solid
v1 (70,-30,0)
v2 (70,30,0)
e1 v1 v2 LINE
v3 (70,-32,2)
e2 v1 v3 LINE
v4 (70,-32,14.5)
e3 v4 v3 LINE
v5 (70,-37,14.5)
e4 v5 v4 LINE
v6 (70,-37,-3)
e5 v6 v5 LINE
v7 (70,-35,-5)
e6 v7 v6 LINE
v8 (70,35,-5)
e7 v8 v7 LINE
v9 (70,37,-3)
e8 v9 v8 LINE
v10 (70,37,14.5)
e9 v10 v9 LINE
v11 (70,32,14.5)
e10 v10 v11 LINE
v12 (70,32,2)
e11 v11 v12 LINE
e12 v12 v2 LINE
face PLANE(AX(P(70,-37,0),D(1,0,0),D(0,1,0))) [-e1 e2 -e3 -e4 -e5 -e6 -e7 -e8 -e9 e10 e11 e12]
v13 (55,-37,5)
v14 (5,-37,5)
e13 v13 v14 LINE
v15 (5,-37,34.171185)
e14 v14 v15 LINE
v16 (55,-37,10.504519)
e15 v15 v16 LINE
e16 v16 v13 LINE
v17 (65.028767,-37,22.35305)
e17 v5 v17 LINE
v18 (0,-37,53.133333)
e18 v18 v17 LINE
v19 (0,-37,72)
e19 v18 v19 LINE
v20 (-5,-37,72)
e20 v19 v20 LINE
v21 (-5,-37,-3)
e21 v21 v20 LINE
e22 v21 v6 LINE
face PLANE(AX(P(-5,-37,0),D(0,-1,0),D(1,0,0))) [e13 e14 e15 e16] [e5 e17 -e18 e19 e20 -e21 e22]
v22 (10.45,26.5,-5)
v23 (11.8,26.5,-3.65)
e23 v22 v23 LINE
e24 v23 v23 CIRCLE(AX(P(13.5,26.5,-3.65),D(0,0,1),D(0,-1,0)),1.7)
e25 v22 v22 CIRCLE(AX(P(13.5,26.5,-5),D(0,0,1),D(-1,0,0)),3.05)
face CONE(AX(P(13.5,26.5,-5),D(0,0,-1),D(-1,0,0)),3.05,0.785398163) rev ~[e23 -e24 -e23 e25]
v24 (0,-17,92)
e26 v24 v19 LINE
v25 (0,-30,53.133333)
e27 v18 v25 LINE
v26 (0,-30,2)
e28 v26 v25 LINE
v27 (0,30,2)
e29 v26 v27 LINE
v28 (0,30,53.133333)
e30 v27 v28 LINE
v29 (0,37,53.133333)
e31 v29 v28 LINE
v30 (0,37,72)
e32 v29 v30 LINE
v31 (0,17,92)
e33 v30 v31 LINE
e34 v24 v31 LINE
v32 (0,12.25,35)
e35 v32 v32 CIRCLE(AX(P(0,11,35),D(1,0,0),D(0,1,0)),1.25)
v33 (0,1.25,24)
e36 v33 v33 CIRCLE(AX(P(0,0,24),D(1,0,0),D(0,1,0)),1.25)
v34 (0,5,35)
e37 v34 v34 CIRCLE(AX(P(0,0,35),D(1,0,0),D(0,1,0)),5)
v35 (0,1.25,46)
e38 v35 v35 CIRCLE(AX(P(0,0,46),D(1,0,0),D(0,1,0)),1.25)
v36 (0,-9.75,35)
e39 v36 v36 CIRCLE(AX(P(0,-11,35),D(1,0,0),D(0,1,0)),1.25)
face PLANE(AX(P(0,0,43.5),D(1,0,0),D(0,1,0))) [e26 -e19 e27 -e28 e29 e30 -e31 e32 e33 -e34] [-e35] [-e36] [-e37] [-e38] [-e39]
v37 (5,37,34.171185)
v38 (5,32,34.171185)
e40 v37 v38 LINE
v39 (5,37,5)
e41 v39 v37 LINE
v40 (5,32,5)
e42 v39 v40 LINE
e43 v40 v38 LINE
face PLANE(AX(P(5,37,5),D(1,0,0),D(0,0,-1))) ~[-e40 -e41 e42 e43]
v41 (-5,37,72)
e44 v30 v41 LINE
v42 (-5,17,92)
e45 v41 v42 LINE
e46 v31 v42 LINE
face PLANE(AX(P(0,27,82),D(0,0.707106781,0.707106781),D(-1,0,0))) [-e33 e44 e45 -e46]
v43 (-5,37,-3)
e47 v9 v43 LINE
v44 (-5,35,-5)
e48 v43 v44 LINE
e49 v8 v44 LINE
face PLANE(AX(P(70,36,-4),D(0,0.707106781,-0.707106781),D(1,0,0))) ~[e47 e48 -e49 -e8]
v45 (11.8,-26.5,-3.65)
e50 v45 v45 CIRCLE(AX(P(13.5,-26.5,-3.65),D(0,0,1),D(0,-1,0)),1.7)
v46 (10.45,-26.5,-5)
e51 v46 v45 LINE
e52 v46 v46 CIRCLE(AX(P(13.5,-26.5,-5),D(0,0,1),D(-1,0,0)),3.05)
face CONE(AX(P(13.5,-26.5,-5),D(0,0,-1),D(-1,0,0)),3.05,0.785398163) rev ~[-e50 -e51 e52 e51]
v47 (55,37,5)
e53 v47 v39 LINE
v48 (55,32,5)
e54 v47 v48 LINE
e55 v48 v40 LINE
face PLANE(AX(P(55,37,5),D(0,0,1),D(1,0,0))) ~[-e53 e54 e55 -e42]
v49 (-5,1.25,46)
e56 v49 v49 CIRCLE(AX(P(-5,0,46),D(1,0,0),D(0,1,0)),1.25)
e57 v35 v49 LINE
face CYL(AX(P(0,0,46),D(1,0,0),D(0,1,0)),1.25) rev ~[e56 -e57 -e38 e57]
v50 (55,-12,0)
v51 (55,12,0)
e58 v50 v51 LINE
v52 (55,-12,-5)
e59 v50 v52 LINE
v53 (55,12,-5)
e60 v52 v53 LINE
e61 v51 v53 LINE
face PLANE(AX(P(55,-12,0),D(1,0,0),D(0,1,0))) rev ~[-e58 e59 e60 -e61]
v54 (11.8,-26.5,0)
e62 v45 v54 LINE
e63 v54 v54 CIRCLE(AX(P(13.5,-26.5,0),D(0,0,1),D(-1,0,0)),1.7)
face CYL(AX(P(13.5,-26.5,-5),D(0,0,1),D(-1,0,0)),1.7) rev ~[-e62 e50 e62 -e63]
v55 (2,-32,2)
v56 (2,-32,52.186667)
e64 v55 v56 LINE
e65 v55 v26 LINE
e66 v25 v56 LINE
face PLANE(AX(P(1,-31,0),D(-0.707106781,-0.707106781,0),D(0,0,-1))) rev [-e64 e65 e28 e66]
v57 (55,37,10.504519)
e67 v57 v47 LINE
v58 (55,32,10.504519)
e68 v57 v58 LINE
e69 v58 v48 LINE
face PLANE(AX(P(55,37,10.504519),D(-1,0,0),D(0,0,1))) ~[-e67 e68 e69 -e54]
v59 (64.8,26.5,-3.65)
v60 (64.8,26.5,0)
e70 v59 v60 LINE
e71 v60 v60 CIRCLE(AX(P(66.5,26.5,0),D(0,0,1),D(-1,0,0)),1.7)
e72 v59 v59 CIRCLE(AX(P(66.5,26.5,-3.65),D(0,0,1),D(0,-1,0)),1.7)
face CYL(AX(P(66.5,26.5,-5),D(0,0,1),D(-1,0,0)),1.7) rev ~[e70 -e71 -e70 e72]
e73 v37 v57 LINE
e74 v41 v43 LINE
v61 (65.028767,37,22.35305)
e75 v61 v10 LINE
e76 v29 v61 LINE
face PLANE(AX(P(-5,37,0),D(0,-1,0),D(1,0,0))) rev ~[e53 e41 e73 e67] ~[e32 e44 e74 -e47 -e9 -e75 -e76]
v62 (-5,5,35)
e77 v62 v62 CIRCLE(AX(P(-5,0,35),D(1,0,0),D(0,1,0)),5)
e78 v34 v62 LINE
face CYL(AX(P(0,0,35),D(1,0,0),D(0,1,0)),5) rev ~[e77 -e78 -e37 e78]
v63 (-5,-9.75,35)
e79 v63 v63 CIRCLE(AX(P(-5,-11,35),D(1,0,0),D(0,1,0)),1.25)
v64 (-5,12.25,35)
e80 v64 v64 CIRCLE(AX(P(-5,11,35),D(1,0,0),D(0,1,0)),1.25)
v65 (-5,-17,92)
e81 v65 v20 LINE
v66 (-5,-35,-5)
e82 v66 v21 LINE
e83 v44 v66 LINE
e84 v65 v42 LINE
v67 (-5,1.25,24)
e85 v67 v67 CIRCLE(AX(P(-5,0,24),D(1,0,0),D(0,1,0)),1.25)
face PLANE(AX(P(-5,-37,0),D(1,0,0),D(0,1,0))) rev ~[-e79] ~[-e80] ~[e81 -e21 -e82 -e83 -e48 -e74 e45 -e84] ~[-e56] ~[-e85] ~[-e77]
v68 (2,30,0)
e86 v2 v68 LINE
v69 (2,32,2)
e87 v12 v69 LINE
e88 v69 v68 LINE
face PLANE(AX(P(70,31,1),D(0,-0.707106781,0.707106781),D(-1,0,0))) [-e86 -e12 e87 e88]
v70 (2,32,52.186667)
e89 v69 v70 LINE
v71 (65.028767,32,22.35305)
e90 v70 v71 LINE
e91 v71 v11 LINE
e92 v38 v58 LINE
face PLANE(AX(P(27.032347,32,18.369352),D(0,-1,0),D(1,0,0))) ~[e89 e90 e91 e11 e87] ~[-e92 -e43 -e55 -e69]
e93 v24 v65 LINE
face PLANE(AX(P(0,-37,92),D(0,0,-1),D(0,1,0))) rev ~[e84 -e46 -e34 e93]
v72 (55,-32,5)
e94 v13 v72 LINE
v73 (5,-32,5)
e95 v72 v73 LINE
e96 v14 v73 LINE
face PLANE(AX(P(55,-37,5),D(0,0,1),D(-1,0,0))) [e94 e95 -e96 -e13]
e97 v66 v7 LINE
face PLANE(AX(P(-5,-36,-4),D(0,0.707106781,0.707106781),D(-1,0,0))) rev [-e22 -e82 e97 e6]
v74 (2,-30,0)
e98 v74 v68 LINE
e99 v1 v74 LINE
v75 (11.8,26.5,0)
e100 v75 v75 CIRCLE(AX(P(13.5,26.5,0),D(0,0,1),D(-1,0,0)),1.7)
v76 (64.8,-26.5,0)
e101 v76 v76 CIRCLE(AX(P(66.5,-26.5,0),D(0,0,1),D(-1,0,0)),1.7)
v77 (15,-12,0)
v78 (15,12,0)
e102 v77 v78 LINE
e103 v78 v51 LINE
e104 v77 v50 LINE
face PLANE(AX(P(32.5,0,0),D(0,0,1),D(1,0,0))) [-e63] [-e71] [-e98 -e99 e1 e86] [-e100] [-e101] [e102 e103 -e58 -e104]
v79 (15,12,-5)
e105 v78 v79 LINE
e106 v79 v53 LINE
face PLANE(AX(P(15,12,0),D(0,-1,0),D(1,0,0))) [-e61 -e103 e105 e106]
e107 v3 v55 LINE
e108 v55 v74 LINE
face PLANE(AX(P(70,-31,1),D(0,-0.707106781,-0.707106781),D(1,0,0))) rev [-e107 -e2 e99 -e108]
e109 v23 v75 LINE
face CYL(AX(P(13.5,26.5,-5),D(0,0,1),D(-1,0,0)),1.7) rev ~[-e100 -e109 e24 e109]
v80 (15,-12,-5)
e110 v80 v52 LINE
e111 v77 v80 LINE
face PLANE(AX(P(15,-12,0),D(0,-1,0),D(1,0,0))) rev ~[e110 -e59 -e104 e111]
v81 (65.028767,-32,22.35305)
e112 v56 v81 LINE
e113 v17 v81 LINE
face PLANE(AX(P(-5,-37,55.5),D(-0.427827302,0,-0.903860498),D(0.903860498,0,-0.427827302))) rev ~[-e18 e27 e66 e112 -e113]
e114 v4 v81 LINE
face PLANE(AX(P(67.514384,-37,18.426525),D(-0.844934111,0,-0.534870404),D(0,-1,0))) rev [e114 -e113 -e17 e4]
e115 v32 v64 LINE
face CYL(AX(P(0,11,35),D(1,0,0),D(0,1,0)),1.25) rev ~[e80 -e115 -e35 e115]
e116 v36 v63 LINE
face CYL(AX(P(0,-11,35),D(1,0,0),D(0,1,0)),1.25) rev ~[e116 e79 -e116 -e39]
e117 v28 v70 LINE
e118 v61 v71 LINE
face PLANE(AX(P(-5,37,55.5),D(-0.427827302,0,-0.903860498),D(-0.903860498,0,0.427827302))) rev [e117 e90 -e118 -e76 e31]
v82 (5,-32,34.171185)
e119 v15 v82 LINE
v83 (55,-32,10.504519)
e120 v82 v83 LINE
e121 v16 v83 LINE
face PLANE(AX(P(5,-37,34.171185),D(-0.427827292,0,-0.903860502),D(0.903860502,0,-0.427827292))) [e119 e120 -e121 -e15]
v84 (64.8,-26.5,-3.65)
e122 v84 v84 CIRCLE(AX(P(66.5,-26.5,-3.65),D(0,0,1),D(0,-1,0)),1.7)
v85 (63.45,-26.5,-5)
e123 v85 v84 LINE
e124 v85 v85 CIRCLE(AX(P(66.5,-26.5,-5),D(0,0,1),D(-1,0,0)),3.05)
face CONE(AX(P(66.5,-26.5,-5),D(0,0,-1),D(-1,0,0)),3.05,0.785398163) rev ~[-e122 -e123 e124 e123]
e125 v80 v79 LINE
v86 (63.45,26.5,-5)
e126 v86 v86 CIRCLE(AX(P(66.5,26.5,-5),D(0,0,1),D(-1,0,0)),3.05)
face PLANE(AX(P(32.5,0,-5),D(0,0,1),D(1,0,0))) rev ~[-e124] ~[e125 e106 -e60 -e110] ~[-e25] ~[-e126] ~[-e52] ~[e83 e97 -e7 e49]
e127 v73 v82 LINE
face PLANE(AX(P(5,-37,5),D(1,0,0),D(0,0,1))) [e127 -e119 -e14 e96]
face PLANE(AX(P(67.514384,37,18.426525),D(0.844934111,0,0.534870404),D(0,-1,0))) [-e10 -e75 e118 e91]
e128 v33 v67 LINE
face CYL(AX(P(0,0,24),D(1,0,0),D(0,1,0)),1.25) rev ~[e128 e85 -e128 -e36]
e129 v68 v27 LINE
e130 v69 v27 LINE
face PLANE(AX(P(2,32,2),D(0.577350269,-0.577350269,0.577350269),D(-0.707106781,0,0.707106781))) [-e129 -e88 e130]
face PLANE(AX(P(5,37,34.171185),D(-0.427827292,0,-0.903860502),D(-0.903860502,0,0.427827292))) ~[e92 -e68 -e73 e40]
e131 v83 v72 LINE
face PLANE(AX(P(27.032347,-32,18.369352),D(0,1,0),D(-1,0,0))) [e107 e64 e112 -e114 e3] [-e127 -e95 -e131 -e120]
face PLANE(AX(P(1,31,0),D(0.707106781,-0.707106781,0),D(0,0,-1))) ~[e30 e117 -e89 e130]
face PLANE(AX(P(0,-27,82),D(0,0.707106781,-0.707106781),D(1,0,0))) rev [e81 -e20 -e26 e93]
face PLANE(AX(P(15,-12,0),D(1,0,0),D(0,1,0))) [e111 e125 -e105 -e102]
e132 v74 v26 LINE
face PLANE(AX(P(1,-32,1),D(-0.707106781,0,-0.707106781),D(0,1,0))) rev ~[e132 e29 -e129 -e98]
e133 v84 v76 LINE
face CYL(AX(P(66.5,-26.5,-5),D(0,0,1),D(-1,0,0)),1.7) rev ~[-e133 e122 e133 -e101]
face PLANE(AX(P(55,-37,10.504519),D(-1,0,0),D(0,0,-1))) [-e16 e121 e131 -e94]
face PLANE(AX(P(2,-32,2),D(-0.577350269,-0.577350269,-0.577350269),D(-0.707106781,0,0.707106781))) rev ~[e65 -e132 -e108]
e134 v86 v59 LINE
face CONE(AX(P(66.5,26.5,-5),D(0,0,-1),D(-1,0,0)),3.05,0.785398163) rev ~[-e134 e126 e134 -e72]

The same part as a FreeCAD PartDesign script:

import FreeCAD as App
import Part
import Sketcher
from FreeCAD import Vector


def edges_at(feature, points):
    """Names of the edges that pass closest to the given points."""
    edges = feature.Shape.Edges
    near = lambda p: min(range(len(edges)), key=lambda i: edges[i].distToShape(Part.Vertex(*p))[0])
    return sorted({f"Edge{near(p) + 1}" for p in points})

doc = App.newDocument("Part")
params = doc.addObject("Spreadsheet::Sheet", "Params")
for row, (alias, value) in enumerate([
    ("sketch1_width", "75 mm"),
    ("sketch1_width2", "40 mm"),
    ("sketch1_height", "74 mm"),
    ("sketch1_height2", "24 mm"),
    ("pad1_length", "5 mm"),
    ("sketch2_width", "74 mm"),
    ("sketch2_height", "97 mm"),
    ("pad2_length", "5 mm"),
    ("sketch3_width", "75 mm"),
    ("sketch3_width2", "50 mm"),
    ("sketch3_height", "25 mm"),
    ("sketch3_height2", "60.5 mm"),
    ("pad3_length", "5 mm"),
    ("sketch4_diameter", "3.4 mm"),
    ("hole_diameter", "3.4 mm"),
    ("hole_csink_diameter", "6.1 mm"),
    ("sketch5_diameter", "10 mm"),
    ("sketch5_diameter2", "2.5 mm"),
    ("chamfer_size", "2 mm"),
    ("chamfer2_size", "5.5 mm"),
    ("chamfer3_size", "20 mm"),
], start=1):
    params.set(f"A{row}", alias)
    params.set(f"B{row}", "=" + value)
    params.setAlias(f"B{row}", alias)

body = doc.addObject("PartDesign::Body", "Body")

# Sketch on XY plane
sketch1 = body.newObject("Sketcher::SketchObject", "Sketch")
sketch1.AttachmentSupport = (doc.getObject("XY_Plane"), [""])
sketch1.MapMode = "FlatFace"
sketch1.addGeometry(Part.LineSegment(Vector(-5, 37, 0), Vector(-5, -37, 0)), False)
sketch1.addGeometry(Part.LineSegment(Vector(-5, -37, 0), Vector(70, -37, 0)), False)
sketch1.addGeometry(Part.LineSegment(Vector(70, -37, 0), Vector(70, 37, 0)), False)
sketch1.addGeometry(Part.LineSegment(Vector(70, 37, 0), Vector(-5, 37, 0)), False)
sketch1.addGeometry(Part.LineSegment(Vector(55, -12, 0), Vector(15, -12, 0)), False)
sketch1.addGeometry(Part.LineSegment(Vector(15, -12, 0), Vector(15, 12, 0)), False)
sketch1.addGeometry(Part.LineSegment(Vector(15, 12, 0), Vector(55, 12, 0)), False)
sketch1.addGeometry(Part.LineSegment(Vector(55, 12, 0), Vector(55, -12, 0)), False)
sketch1.addConstraint(Sketcher.Constraint("Coincident", 0, 2, 1, 1))
sketch1.addConstraint(Sketcher.Constraint("Coincident", 1, 2, 2, 1))
sketch1.addConstraint(Sketcher.Constraint("Coincident", 2, 2, 3, 1))
sketch1.addConstraint(Sketcher.Constraint("Coincident", 3, 2, 0, 1))
sketch1.addConstraint(Sketcher.Constraint("Coincident", 4, 2, 5, 1))
sketch1.addConstraint(Sketcher.Constraint("Coincident", 5, 2, 6, 1))
sketch1.addConstraint(Sketcher.Constraint("Coincident", 6, 2, 7, 1))
sketch1.addConstraint(Sketcher.Constraint("Coincident", 7, 2, 4, 1))
sketch1.addConstraint(Sketcher.Constraint("Vertical", 0))
sketch1.addConstraint(Sketcher.Constraint("Horizontal", 1))
sketch1.addConstraint(Sketcher.Constraint("Vertical", 2))
sketch1.addConstraint(Sketcher.Constraint("Horizontal", 3))
sketch1.addConstraint(Sketcher.Constraint("Horizontal", 4))
sketch1.addConstraint(Sketcher.Constraint("Vertical", 5))
sketch1.addConstraint(Sketcher.Constraint("Horizontal", 6))
sketch1.addConstraint(Sketcher.Constraint("Vertical", 7))
sketch1.addConstraint(Sketcher.Constraint("DistanceX", 1, 1, 1, 2, 75.0))
sketch1.addConstraint(Sketcher.Constraint("DistanceX", 4, 2, 4, 1, 40.0))
sketch1.addConstraint(Sketcher.Constraint("DistanceY", 0, 2, 0, 1, 74.0))
sketch1.addConstraint(Sketcher.Constraint("DistanceY", 5, 1, 5, 2, 24.0))
sketch1.addConstraint(Sketcher.Constraint("DistanceX", 0, 2, -1, 1, 5.0))
sketch1.addConstraint(Sketcher.Constraint("DistanceY", 0, 2, -1, 1, 37.0))
sketch1.addConstraint(Sketcher.Constraint("DistanceX", -1, 1, 4, 2, 15.0))
sketch1.addConstraint(Sketcher.Constraint("DistanceY", 4, 2, -1, 1, 12.0))
sketch1.setExpression("Constraints[16]", "Params.sketch1_width")
sketch1.setExpression("Constraints[17]", "Params.sketch1_width2")
sketch1.setExpression("Constraints[18]", "Params.sketch1_height")
sketch1.setExpression("Constraints[19]", "Params.sketch1_height2")
pad1 = body.newObject("PartDesign::Pad", "Pad")
pad1.Profile = sketch1
pad1.setExpression("Length", "Params.pad1_length")
pad1.Reversed = True

# Sketch on YZ plane
sketch2 = body.newObject("Sketcher::SketchObject", "Sketch001")
sketch2.AttachmentSupport = (doc.getObject("YZ_Plane"), [""])
sketch2.MapMode = "FlatFace"
sketch2.addGeometry(Part.LineSegment(Vector(-37, 92, 0), Vector(-37, -5, 0)), False)
sketch2.addGeometry(Part.LineSegment(Vector(-37, -5, 0), Vector(37, -5, 0)), False)
sketch2.addGeometry(Part.LineSegment(Vector(37, -5, 0), Vector(37, 92, 0)), False)
sketch2.addGeometry(Part.LineSegment(Vector(37, 92, 0), Vector(-37, 92, 0)), False)
sketch2.addConstraint(Sketcher.Constraint("Coincident", 0, 2, 1, 1))
sketch2.addConstraint(Sketcher.Constraint("Coincident", 1, 2, 2, 1))
sketch2.addConstraint(Sketcher.Constraint("Coincident", 2, 2, 3, 1))
sketch2.addConstraint(Sketcher.Constraint("Coincident", 3, 2, 0, 1))
sketch2.addConstraint(Sketcher.Constraint("Vertical", 0))
sketch2.addConstraint(Sketcher.Constraint("Horizontal", 1))
sketch2.addConstraint(Sketcher.Constraint("Vertical", 2))
sketch2.addConstraint(Sketcher.Constraint("Horizontal", 3))
sketch2.addConstraint(Sketcher.Constraint("DistanceX", 1, 1, 1, 2, 74.0))
sketch2.addConstraint(Sketcher.Constraint("DistanceY", 0, 2, 0, 1, 97.0))
sketch2.addConstraint(Sketcher.Constraint("DistanceX", 0, 2, -1, 1, 37.0))
sketch2.addConstraint(Sketcher.Constraint("DistanceY", 0, 2, -1, 1, 5.0))
sketch2.setExpression("Constraints[8]", "Params.sketch2_width")
sketch2.setExpression("Constraints[9]", "Params.sketch2_height")
pad2 = body.newObject("PartDesign::Pad", "Pad001")
pad2.Profile = sketch2
pad2.setExpression("Length", "Params.pad2_length")
pad2.Reversed = True

# Sketch on XZ plane
sketch3 = body.newObject("Sketcher::SketchObject", "Sketch002")
sketch3.AttachmentSupport = (doc.getObject("XZ_Plane"), [""])
sketch3.MapMode = "FlatFace"
sketch3.AttachmentOffset = App.Placement(Vector(0, 0, 37), App.Rotation())
sketch3.addGeometry(Part.LineSegment(Vector(70, 20, 0), Vector(-5, 56, 0)), False)
sketch3.addGeometry(Part.LineSegment(Vector(-5, 56, 0), Vector(-5, -5, 0)), False)
sketch3.addGeometry(Part.LineSegment(Vector(-5, -5, 0), Vector(70, -5, 0)), False)
sketch3.addGeometry(Part.LineSegment(Vector(70, -5, 0), Vector(70, 20, 0)), False)
sketch3.addGeometry(Part.LineSegment(Vector(5, 34, 0), Vector(55, 11, 0)), False)
sketch3.addGeometry(Part.LineSegment(Vector(55, 11, 0), Vector(55, 5, 0)), False)
sketch3.addGeometry(Part.LineSegment(Vector(55, 5, 0), Vector(5, 5, 0)), False)
sketch3.addGeometry(Part.LineSegment(Vector(5, 5, 0), Vector(5, 34, 0)), False)
sketch3.addConstraint(Sketcher.Constraint("Coincident", 0, 2, 1, 1))
sketch3.addConstraint(Sketcher.Constraint("Coincident", 1, 2, 2, 1))
sketch3.addConstraint(Sketcher.Constraint("Coincident", 2, 2, 3, 1))
sketch3.addConstraint(Sketcher.Constraint("Coincident", 3, 2, 0, 1))
sketch3.addConstraint(Sketcher.Constraint("Coincident", 4, 2, 5, 1))
sketch3.addConstraint(Sketcher.Constraint("Coincident", 5, 2, 6, 1))
sketch3.addConstraint(Sketcher.Constraint("Coincident", 6, 2, 7, 1))
sketch3.addConstraint(Sketcher.Constraint("Coincident", 7, 2, 4, 1))
sketch3.addConstraint(Sketcher.Constraint("Vertical", 1))
sketch3.addConstraint(Sketcher.Constraint("Horizontal", 2))
sketch3.addConstraint(Sketcher.Constraint("Vertical", 3))
sketch3.addConstraint(Sketcher.Constraint("Vertical", 5))
sketch3.addConstraint(Sketcher.Constraint("Horizontal", 6))
sketch3.addConstraint(Sketcher.Constraint("Vertical", 7))
sketch3.addConstraint(Sketcher.Constraint("Symmetric", 1, 2, 6, 2, -1, 1))
sketch3.addConstraint(Sketcher.Constraint("Parallel", 0, 4))
sketch3.addConstraint(Sketcher.Constraint("DistanceX", 2, 1, 2, 2, 75.0))
sketch3.addConstraint(Sketcher.Constraint("DistanceX", 6, 2, 6, 1, 50.0))
sketch3.addConstraint(Sketcher.Constraint("DistanceY", 3, 1, 3, 2, 25.0))
sketch3.addConstraint(Sketcher.Constraint("DistanceY", 1, 2, 1, 1, 60.5))
sketch3.addConstraint(Sketcher.Constraint("DistanceX", 0, 2, -1, 1, 5.0))
sketch3.addConstraint(Sketcher.Constraint("DistanceY", 1, 2, -1, 1, 5.0))
sketch3.addConstraint(Sketcher.Constraint("DistanceY", 5, 2, 5, 1, 5.504519))
sketch3.setExpression("Constraints[16]", "Params.sketch3_width")
sketch3.setExpression("Constraints[17]", "Params.sketch3_width2")
sketch3.setExpression("Constraints[18]", "Params.sketch3_height")
sketch3.setExpression("Constraints[19]", "Params.sketch3_height2")
pad3 = body.newObject("PartDesign::Pad", "Pad002")
pad3.Profile = sketch3
pad3.setExpression("Length", "Params.pad3_length")
pad3.Reversed = True
doc.recompute()

mirrored = body.newObject("PartDesign::Mirrored", "Mirrored")
mirrored.Originals = [pad3]
mirrored.MirrorPlane = (doc.getObject("XZ_Plane"), [""])
body.Tip = mirrored

# Sketch on XY plane
sketch4 = body.newObject("Sketcher::SketchObject", "Sketch003")
sketch4.AttachmentSupport = (doc.getObject("XY_Plane"), [""])
sketch4.MapMode = "FlatFace"
sketch4.AttachmentOffset = App.Placement(Vector(0, 0, -5), App.Rotation())
sketch4.addGeometry(Part.Circle(Vector(66.5, 26.5, 0), Vector(0, 0, 1), 1.7), False)
sketch4.addGeometry(Part.Circle(Vector(13.5, 26.5, 0), Vector(0, 0, 1), 1.7), False)
sketch4.addGeometry(Part.Circle(Vector(13.5, -26.5, 0), Vector(0, 0, 1), 1.7), False)
sketch4.addGeometry(Part.Circle(Vector(66.5, -26.5, 0), Vector(0, 0, 1), 1.7), False)
sketch4.addConstraint(Sketcher.Constraint("Equal", 0, 1))
sketch4.addConstraint(Sketcher.Constraint("Equal", 1, 2))
sketch4.addConstraint(Sketcher.Constraint("Equal", 2, 3))
sketch4.addConstraint(Sketcher.Constraint("Symmetric", 1, 3, 2, 3, -1))
sketch4.addConstraint(Sketcher.Constraint("Symmetric", 0, 3, 3, 3, -1))
sketch4.addConstraint(Sketcher.Constraint("Horizontal", 0, 3, 1, 3))
sketch4.addConstraint(Sketcher.Constraint("Diameter", 0, 3.4))
sketch4.addConstraint(Sketcher.Constraint("DistanceX", 1, 3, 0, 3, 53.0))
sketch4.addConstraint(Sketcher.Constraint("DistanceY", 2, 3, 1, 3, 53.0))
sketch4.addConstraint(Sketcher.Constraint("DistanceX", -1, 1, 0, 3, 66.5))
sketch4.setExpression("Constraints[6]", "Params.sketch4_diameter")
doc.recompute()
hole = body.newObject("PartDesign::Hole", "Hole")
hole.Profile = sketch4
hole.ThreadType = "None"
hole.setExpression("Diameter", "Params.hole_diameter")
hole.DepthType = "ThroughAll"
hole.HoleCutType = "Countersink"
hole.setExpression("HoleCutDiameter", "Params.hole_csink_diameter")
hole.HoleCutCountersinkAngle = 90
hole.Reversed = True

# Sketch on YZ plane
sketch5 = body.newObject("Sketcher::SketchObject", "Sketch004")
sketch5.AttachmentSupport = (doc.getObject("YZ_Plane"), [""])
sketch5.MapMode = "FlatFace"
sketch5.addGeometry(Part.Circle(Vector(0, 35, 0), Vector(0, 0, 1), 5), False)
sketch5.addGeometry(Part.Circle(Vector(0, 46, 0), Vector(0, 0, 1), 1.2), False)
sketch5.addGeometry(Part.Circle(Vector(11, 35, 0), Vector(0, 0, 1), 1.2), False)
sketch5.addGeometry(Part.Circle(Vector(0, 24, 0), Vector(0, 0, 1), 1.2), False)
sketch5.addGeometry(Part.Circle(Vector(-11, 35, 0), Vector(0, 0, 1), 1.2), False)
sketch5.addConstraint(Sketcher.Constraint("Equal", 1, 2))
sketch5.addConstraint(Sketcher.Constraint("Equal", 2, 3))
sketch5.addConstraint(Sketcher.Constraint("Equal", 3, 4))
sketch5.addConstraint(Sketcher.Constraint("Symmetric", 2, 3, 4, 3, -2))
sketch5.addConstraint(Sketcher.Constraint("PointOnObject", 0, 3, -2))
sketch5.addConstraint(Sketcher.Constraint("PointOnObject", 1, 3, -2))
sketch5.addConstraint(Sketcher.Constraint("PointOnObject", 3, 3, -2))
sketch5.addConstraint(Sketcher.Constraint("Horizontal", 0, 3, 2, 3))
sketch5.addConstraint(Sketcher.Constraint("Diameter", 0, 10.0))
sketch5.addConstraint(Sketcher.Constraint("Diameter", 1, 2.5))
sketch5.addConstraint(Sketcher.Constraint("DistanceY", -1, 1, 0, 3, 35.0))
sketch5.addConstraint(Sketcher.Constraint("DistanceY", -1, 1, 1, 3, 46.0))
sketch5.addConstraint(Sketcher.Constraint("DistanceX", -1, 1, 2, 3, 11.0))
sketch5.addConstraint(Sketcher.Constraint("DistanceY", -1, 1, 3, 3, 24.0))
sketch5.setExpression("Constraints[8]", "Params.sketch5_diameter")
sketch5.setExpression("Constraints[9]", "Params.sketch5_diameter2")
pocket1 = body.newObject("PartDesign::Pocket", "Pocket")
pocket1.Profile = sketch5
pocket1.Type = "ThroughAll"
doc.recompute()

chamfer = body.newObject("PartDesign::Chamfer", "Chamfer")
chamfer.Base = (pocket1, edges_at(pocket1, [
    (0, 0, 0),
    (35, 32, 0),
    (35, -32, 0),
    (0, -32, 26.567),
    (0, 32, 26.567),
    (32.5, -37, -5),
    (32.5, 37, -5),
]))
chamfer.setExpression("Size", "Params.chamfer_size")
doc.recompute()

chamfer2 = body.newObject("PartDesign::Chamfer", "Chamfer001")
chamfer2.Base = (chamfer, edges_at(chamfer, [(70, -34.5, 20), (70, 34.5, 20)]))
chamfer2.setExpression("Size", "Params.chamfer2_size")
doc.recompute()

chamfer3 = body.newObject("PartDesign::Chamfer", "Chamfer002")
chamfer3.Base = (chamfer2, edges_at(chamfer2, [(-2.5, -37, 92), (-2.5, 37, 92)]))
chamfer3.setExpression("Size", "Params.chamfer3_size")

doc.recompute()
